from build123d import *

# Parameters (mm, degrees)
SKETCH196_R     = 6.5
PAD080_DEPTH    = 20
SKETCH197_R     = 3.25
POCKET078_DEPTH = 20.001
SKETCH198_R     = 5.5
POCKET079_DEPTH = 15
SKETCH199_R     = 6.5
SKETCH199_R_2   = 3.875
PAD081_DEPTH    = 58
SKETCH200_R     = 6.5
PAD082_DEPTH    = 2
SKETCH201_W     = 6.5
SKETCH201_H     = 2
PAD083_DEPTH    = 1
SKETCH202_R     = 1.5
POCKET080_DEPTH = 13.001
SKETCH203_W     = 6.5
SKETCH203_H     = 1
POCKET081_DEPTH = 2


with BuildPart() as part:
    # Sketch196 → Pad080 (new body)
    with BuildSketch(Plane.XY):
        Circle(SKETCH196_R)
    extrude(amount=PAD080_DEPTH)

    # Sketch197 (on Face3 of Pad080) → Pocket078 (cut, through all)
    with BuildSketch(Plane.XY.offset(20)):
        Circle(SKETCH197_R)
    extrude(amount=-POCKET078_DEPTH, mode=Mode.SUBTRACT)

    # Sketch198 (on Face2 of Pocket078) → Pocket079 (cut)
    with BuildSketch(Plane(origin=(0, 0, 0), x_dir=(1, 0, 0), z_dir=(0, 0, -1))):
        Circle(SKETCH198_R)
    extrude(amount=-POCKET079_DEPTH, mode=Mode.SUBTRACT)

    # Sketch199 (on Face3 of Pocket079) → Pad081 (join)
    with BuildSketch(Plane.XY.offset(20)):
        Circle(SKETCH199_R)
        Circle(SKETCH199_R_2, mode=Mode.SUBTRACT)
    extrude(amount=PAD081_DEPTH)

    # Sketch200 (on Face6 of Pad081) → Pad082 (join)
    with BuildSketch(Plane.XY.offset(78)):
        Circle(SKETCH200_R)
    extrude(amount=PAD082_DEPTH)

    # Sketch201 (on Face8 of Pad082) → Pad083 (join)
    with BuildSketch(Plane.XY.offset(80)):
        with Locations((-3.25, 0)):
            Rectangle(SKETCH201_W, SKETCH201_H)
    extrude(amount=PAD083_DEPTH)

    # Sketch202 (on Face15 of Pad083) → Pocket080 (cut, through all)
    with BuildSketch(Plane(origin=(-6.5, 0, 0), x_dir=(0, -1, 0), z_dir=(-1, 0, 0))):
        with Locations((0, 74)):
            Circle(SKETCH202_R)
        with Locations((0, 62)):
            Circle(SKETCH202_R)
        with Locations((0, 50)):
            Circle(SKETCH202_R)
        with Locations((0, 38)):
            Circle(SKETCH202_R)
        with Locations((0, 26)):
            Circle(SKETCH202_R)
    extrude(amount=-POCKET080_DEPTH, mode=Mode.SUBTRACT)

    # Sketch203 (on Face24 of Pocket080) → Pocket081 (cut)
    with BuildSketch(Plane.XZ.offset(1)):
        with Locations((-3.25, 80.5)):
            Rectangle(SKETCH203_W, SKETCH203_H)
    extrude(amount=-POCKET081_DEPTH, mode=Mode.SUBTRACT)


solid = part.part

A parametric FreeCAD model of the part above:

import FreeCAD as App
import Part
import Sketcher
Q = App.Units.Quantity


def add_polygon(sketch, points):
    """Adds a closed chain of lines whose ends are joined by coincident constraints."""
    first, n = sketch.GeometryCount, len(points)
    for a, b in zip(points, points[1:] + points[:1]):
        sketch.addGeometry(Part.LineSegment(App.Vector(*a, 0), App.Vector(*b, 0)), False)
    for i in range(n):
        sketch.addConstraint(Sketcher.Constraint("Coincident", first + i, 2, first + (i + 1) % n, 1))

doc = App.newDocument("Part")
params = doc.addObject("Spreadsheet::Sheet", "Params")
for row, (alias, value) in enumerate([
    ("sketch1_diameter", "13 mm"),
    ("pad1_length", "20 mm"),
    ("sketch2_diameter", "6.5 mm"),
    ("sketch3_diameter", "11 mm"),
    ("pocket2_length", "15 mm"),
    ("sketch4_diameter", "13 mm"),
    ("sketch4_diameter2", "7.75 mm"),
    ("pad2_length", "58 mm"),
    ("sketch5_diameter", "13 mm"),
    ("pad3_length", "2 mm"),
    ("sketch6_height", "2 mm"),
    ("sketch6_width", "6.5 mm"),
    ("pad4_length", "1 mm"),
    ("sketch7_diameter", "3 mm"),
    ("sketch8_height", "1 mm"),
    ("sketch8_width", "6.5 mm"),
    ("pocket4_length", "2 mm"),
], start=1):
    params.set(f"A{row}", alias)
    params.set(f"B{row}", "=" + value)
    params.setAlias(f"B{row}", alias)

body = doc.addObject("PartDesign::Body", "Body")

# Sketch on XY plane
sketch1 = doc.addObject("Sketcher::SketchObject", "Sketch")
body.addObject(sketch1)
sketch1.AttachmentSupport = (doc.XY_Plane, [""])
sketch1.MapMode = "FlatFace"
sketch1.addGeometry(Part.Circle(App.Vector(0, 0, 0), App.Vector(0, 0, 1), 6), False)
sketch1.addConstraint(Sketcher.Constraint("Coincident", 0, 3, -1, 1))
sketch1.addConstraint(Sketcher.Constraint("Diameter", 0, Q("13 mm")))
sketch1.setExpression("Constraints[1]", "Params.sketch1_diameter")
pad1 = doc.addObject("PartDesign::Pad", "Pad")
body.addObject(pad1)
pad1.Profile = sketch1
pad1.setExpression("Length", "Params.pad1_length")

# Sketch on XY plane
sketch2 = doc.addObject("Sketcher::SketchObject", "Sketch001")
body.addObject(sketch2)
sketch2.AttachmentSupport = (doc.XY_Plane, [""])
sketch2.MapMode = "FlatFace"
sketch2.AttachmentOffset = App.Placement(App.Vector(0, 0, 20), App.Rotation())
sketch2.addGeometry(Part.Circle(App.Vector(0, 0, 0), App.Vector(0, 0, 1), 3.2), False)
sketch2.addConstraint(Sketcher.Constraint("Coincident", 0, 3, -1, 1))
sketch2.addConstraint(Sketcher.Constraint("Diameter", 0, Q("6.5 mm")))
sketch2.setExpression("Constraints[1]", "Params.sketch2_diameter")
pocket1 = doc.addObject("PartDesign::Pocket", "Pocket")
body.addObject(pocket1)
pocket1.Profile = sketch2
pocket1.Type = "ThroughAll"

# Sketch on XY plane
sketch3 = doc.addObject("Sketcher::SketchObject", "Sketch002")
body.addObject(sketch3)
sketch3.AttachmentSupport = (doc.XY_Plane, [""])
sketch3.MapMode = "FlatFace"
sketch3.addGeometry(Part.Circle(App.Vector(0, 0, 0), App.Vector(0, 0, 1), 6), False)
sketch3.addConstraint(Sketcher.Constraint("Coincident", 0, 3, -1, 1))
sketch3.addConstraint(Sketcher.Constraint("Diameter", 0, Q("11 mm")))
sketch3.setExpression("Constraints[1]", "Params.sketch3_diameter")
pocket2 = doc.addObject("PartDesign::Pocket", "Pocket001")
body.addObject(pocket2)
pocket2.Profile = sketch3
pocket2.setExpression("Length", "Params.pocket2_length")
pocket2.Reversed = True

# Sketch on XY plane
sketch4 = doc.addObject("Sketcher::SketchObject", "Sketch003")
body.addObject(sketch4)
sketch4.AttachmentSupport = (doc.XY_Plane, [""])
sketch4.MapMode = "FlatFace"
sketch4.AttachmentOffset = App.Placement(App.Vector(0, 0, 20), App.Rotation())
sketch4.addGeometry(Part.Circle(App.Vector(0, 0, 0), App.Vector(0, 0, 1), 6.5), False)
sketch4.addGeometry(Part.Circle(App.Vector(0, 0, 0), App.Vector(0, 0, 1), 3.9), False)
sketch4.addConstraint(Sketcher.Constraint("Coincident", 0, 3, -1, 1))
sketch4.addConstraint(Sketcher.Constraint("Coincident", 1, 3, -1, 1))
sketch4.addConstraint(Sketcher.Constraint("Diameter", 0, Q("13 mm")))
sketch4.addConstraint(Sketcher.Constraint("Diameter", 1, Q("7.75 mm")))
sketch4.setExpression("Constraints[2]", "Params.sketch4_diameter")
sketch4.setExpression("Constraints[3]", "Params.sketch4_diameter2")
pad2 = doc.addObject("PartDesign::Pad", "Pad001")
body.addObject(pad2)
pad2.Profile = sketch4
pad2.setExpression("Length", "Params.pad2_length")

# Sketch on XY plane
sketch5 = doc.addObject("Sketcher::SketchObject", "Sketch004")
body.addObject(sketch5)
sketch5.AttachmentSupport = (doc.XY_Plane, [""])
sketch5.MapMode = "FlatFace"
sketch5.AttachmentOffset = App.Placement(App.Vector(0, 0, 78), App.Rotation())
sketch5.addGeometry(Part.Circle(App.Vector(0, 0, 0), App.Vector(0, 0, 1), 6), False)
sketch5.addConstraint(Sketcher.Constraint("Coincident", 0, 3, -1, 1))
sketch5.addConstraint(Sketcher.Constraint("Diameter", 0, Q("13 mm")))
sketch5.setExpression("Constraints[1]", "Params.sketch5_diameter")
pad3 = doc.addObject("PartDesign::Pad", "Pad002")
body.addObject(pad3)
pad3.Profile = sketch5
pad3.setExpression("Length", "Params.pad3_length")

# Sketch on XY plane
sketch6 = doc.addObject("Sketcher::SketchObject", "Sketch005")
body.addObject(sketch6)
sketch6.AttachmentSupport = (doc.XY_Plane, [""])
sketch6.MapMode = "FlatFace"
sketch6.AttachmentOffset = App.Placement(App.Vector(0, 0, 80), App.Rotation())
add_polygon(sketch6, [(-6.5, 1), (-6.5, -1), (0, -1), (0, 1)])  # lines 0-3
sketch6.addConstraint(Sketcher.Constraint("Vertical", 0))
sketch6.addConstraint(Sketcher.Constraint("Horizontal", 1))
sketch6.addConstraint(Sketcher.Constraint("Vertical", 2))
sketch6.addConstraint(Sketcher.Constraint("Horizontal", 3))
sketch6.addConstraint(Sketcher.Constraint("Symmetric", 1, 2, 2, 2, -1, 1))
sketch6.addConstraint(Sketcher.Constraint("DistanceY", 0, 2, 0, 1, Q("2 mm")))
sketch6.addConstraint(Sketcher.Constraint("DistanceX", 1, 1, 1, 2, Q("6.5 mm")))
sketch6.setExpression("Constraints[9]", "Params.sketch6_height")
sketch6.setExpression("Constraints[10]", "Params.sketch6_width")
pad4 = doc.addObject("PartDesign::Pad", "Pad003")
body.addObject(pad4)
pad4.Profile = sketch6
pad4.setExpression("Length", "Params.pad4_length")

# Sketch on YZ plane
sketch7 = doc.addObject("Sketcher::SketchObject", "Sketch006")
body.addObject(sketch7)
sketch7.AttachmentSupport = (doc.YZ_Plane, [""])
sketch7.MapMode = "FlatFace"
sketch7.AttachmentOffset = App.Placement(App.Vector(0, 0, -6.5), App.Rotation())
sketch7.addGeometry(Part.Circle(App.Vector(0, 74, 0), App.Vector(0, 0, 1), 1.5), False)
sketch7.addGeometry(Part.Circle(App.Vector(0, 62, 0), App.Vector(0, 0, 1), 1.5), False)
sketch7.addGeometry(Part.Circle(App.Vector(0, 50, 0), App.Vector(0, 0, 1), 1.5), False)
sketch7.addGeometry(Part.Circle(App.Vector(0, 38, 0), App.Vector(0, 0, 1), 1.5), False)
sketch7.addGeometry(Part.Circle(App.Vector(0, 26, 0), App.Vector(0, 0, 1), 1.5), False)
sketch7.addConstraint(Sketcher.Constraint("Equal", 0, 1))
sketch7.addConstraint(Sketcher.Constraint("Equal", 1, 2))
sketch7.addConstraint(Sketcher.Constraint("Equal", 2, 3))
sketch7.addConstraint(Sketcher.Constraint("Equal", 3, 4))
sketch7.addConstraint(Sketcher.Constraint("PointOnObject", 0, 3, -2))
sketch7.addConstraint(Sketcher.Constraint("PointOnObject", 1, 3, -2))
sketch7.addConstraint(Sketcher.Constraint("PointOnObject", 2, 3, -2))
sketch7.addConstraint(Sketcher.Constraint("PointOnObject", 3, 3, -2))
sketch7.addConstraint(Sketcher.Constraint("PointOnObject", 4, 3, -2))
sketch7.addConstraint(Sketcher.Constraint("Diameter", 0, Q("3 mm")))
sketch7.addConstraint(Sketcher.Constraint("DistanceY", -1, 1, 0, 3, Q("74 mm")))
sketch7.addConstraint(Sketcher.Constraint("DistanceY", -1, 1, 1, 3, Q("62 mm")))
sketch7.addConstraint(Sketcher.Constraint("DistanceY", -1, 1, 2, 3, Q("50 mm")))
sketch7.addConstraint(Sketcher.Constraint("DistanceY", -1, 1, 3, 3, Q("38 mm")))
sketch7.addConstraint(Sketcher.Constraint("DistanceY", -1, 1, 4, 3, Q("26 mm")))
sketch7.setExpression("Constraints[9]", "Params.sketch7_diameter")
pocket3 = doc.addObject("PartDesign::Pocket", "Pocket002")
body.addObject(pocket3)
pocket3.Profile = sketch7
pocket3.Type = "ThroughAll"
pocket3.Reversed = True

# Sketch on XZ plane
sketch8 = doc.addObject("Sketcher::SketchObject", "Sketch007")
body.addObject(sketch8)
sketch8.AttachmentSupport = (doc.XZ_Plane, [""])
sketch8.MapMode = "FlatFace"
sketch8.AttachmentOffset = App.Placement(App.Vector(0, 0, 1), App.Rotation())
add_polygon(sketch8, [(-6.5, 81), (-6.5, 80), (0, 80), (0, 81)])  # lines 0-3
sketch8.addConstraint(Sketcher.Constraint("Vertical", 0))
sketch8.addConstraint(Sketcher.Constraint("Horizontal", 1))
sketch8.addConstraint(Sketcher.Constraint("Vertical", 2))
sketch8.addConstraint(Sketcher.Constraint("Horizontal", 3))
sketch8.addConstraint(Sketcher.Constraint("PointOnObject", 1, 2, -2))
sketch8.addConstraint(Sketcher.Constraint("DistanceY", 0, 2, 0, 1, Q("1 mm")))
sketch8.addConstraint(Sketcher.Constraint("DistanceX", 1, 1, 1, 2, Q("6.5 mm")))
sketch8.addConstraint(Sketcher.Constraint("DistanceY", -1, 1, 0, 2, Q("80 mm")))
sketch8.setExpression("Constraints[9]", "Params.sketch8_height")
sketch8.setExpression("Constraints[10]", "Params.sketch8_width")
pocket4 = doc.addObject("PartDesign::Pocket", "Pocket003")
body.addObject(pocket4)
pocket4.Profile = sketch8
pocket4.setExpression("Length", "Params.pocket4_length")

doc.recompute()
